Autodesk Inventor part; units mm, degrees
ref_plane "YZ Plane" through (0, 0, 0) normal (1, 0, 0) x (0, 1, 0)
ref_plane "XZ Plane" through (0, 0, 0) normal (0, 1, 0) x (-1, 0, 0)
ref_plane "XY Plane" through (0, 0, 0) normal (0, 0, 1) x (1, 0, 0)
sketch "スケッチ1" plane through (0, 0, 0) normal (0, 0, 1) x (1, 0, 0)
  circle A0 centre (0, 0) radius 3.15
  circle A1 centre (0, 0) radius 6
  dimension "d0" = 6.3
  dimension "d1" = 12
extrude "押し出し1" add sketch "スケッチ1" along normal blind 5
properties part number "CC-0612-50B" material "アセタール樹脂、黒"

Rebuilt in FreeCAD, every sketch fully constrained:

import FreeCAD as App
import Part
import Sketcher
from FreeCAD import Vector
Q = App.Units.Quantity

doc = App.newDocument("Part")
body = doc.addObject("PartDesign::Body", "Body")

# Sketch on XY plane
sketch1 = doc.addObject("Sketcher::SketchObject", "Sketch")
body.addObject(sketch1)
sketch1.AttachmentSupport = (doc.XY_Plane, [""])
sketch1.MapMode = "FlatFace"
sketch1.addGeometry(Part.Circle(Vector(0, 0, 0), Vector(0, 0, 1), 6), False)
sketch1.addGeometry(Part.Circle(Vector(0, 0, 0), Vector(0, 0, 1), 3.1), False)
sketch1.addConstraint(Sketcher.Constraint("Coincident", 0, 3, -1, 1))
sketch1.addConstraint(Sketcher.Constraint("Coincident", 1, 3, -1, 1))
sketch1.addConstraint(Sketcher.Constraint("Diameter", 0, Q("12 mm")))
sketch1.addConstraint(Sketcher.Constraint("Diameter", 1, Q("6.3 mm")))
pad1 = doc.addObject("PartDesign::Pad", "Pad")
body.addObject(pad1)
pad1.Profile = sketch1
pad1.Length = 5

doc.recompute()
